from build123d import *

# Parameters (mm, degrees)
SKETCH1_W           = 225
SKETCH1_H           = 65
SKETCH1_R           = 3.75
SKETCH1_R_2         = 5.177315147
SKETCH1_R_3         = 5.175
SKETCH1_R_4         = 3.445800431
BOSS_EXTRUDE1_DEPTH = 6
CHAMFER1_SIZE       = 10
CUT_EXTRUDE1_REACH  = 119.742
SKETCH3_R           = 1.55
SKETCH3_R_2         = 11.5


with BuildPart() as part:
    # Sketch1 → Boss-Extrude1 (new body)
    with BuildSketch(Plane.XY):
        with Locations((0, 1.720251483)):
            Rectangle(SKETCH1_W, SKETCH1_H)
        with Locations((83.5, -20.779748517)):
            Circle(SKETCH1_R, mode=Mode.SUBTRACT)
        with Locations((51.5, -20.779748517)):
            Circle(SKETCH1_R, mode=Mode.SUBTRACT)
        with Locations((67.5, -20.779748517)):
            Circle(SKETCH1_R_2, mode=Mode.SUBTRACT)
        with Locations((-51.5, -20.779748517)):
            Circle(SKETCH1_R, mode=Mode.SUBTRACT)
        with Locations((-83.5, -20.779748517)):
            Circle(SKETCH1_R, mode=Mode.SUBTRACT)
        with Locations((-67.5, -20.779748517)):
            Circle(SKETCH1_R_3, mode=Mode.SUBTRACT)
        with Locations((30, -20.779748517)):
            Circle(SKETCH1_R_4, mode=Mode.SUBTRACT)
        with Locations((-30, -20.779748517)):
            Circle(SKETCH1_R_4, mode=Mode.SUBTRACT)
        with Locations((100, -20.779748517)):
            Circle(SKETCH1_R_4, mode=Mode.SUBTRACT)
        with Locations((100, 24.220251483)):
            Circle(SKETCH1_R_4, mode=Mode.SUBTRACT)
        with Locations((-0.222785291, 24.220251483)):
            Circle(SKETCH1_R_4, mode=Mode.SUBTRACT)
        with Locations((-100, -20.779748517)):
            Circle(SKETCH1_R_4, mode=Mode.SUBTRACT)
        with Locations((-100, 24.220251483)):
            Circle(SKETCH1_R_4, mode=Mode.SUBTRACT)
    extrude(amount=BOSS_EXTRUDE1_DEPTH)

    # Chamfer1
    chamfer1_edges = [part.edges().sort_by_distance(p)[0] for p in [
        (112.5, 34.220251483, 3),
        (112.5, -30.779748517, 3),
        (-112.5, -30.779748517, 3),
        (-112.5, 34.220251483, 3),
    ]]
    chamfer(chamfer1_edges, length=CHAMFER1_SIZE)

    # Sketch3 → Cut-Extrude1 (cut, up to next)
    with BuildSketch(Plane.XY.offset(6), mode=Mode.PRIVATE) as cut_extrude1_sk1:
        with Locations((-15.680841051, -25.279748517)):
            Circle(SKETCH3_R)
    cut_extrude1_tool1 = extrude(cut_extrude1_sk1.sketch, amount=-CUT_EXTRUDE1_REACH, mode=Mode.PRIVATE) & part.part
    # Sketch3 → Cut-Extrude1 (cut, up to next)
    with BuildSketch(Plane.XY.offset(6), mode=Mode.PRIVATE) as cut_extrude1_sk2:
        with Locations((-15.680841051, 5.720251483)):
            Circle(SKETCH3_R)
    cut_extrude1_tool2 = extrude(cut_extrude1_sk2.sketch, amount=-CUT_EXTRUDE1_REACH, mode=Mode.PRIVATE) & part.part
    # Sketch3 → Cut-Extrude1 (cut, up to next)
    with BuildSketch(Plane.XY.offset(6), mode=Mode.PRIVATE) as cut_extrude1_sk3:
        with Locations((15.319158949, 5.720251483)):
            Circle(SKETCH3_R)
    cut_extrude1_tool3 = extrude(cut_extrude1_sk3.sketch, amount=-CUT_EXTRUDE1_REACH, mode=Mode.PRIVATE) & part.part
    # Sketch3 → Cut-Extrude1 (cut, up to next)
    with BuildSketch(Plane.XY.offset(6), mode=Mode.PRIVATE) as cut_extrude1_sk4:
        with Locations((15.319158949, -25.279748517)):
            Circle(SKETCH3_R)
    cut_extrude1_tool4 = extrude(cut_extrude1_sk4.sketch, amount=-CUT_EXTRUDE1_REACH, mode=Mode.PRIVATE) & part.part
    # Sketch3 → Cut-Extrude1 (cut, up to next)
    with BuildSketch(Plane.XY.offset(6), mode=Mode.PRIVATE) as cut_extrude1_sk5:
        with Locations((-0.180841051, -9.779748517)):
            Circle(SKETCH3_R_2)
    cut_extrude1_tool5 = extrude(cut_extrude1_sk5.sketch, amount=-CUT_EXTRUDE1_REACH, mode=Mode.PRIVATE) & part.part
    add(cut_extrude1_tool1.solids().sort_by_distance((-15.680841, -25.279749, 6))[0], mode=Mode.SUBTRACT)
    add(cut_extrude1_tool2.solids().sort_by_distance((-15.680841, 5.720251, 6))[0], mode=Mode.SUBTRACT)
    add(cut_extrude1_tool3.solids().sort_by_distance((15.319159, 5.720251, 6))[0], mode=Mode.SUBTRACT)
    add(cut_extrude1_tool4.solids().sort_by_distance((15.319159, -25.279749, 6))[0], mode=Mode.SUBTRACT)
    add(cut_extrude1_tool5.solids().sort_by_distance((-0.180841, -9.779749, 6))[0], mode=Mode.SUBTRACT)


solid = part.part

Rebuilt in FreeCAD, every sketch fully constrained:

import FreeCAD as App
import Part
import Sketcher


def edges_at(feature, points):
    """Names of the edges that pass closest to the given points."""
    edges = feature.Shape.Edges
    near = lambda p: min(range(len(edges)), key=lambda i: edges[i].distToShape(Part.Vertex(*p))[0])
    return sorted({f"Edge{near(p) + 1}" for p in points})

doc = App.newDocument("Part")
body = doc.addObject("PartDesign::Body", "Body")

sketch1 = body.newObject("Sketcher::SketchObject", "Sketch")
sketch1.AttachmentSupport = (doc.getObject("XY_Plane"), [""])
sketch1.MapMode = "FlatFace"
sketch1.addGeometry([
    Part.LineSegment(App.Vector(-112.5, 34.2, 0), App.Vector(-112.5, -30.8, 0)),
    Part.LineSegment(App.Vector(-112.5, -30.8, 0), App.Vector(112.5, -30.8, 0)),
    Part.LineSegment(App.Vector(112.5, -30.8, 0), App.Vector(112.5, 34.2, 0)),
    Part.LineSegment(App.Vector(112.5, 34.2, 0), App.Vector(-112.5, 34.2, 0)),
    Part.Circle(App.Vector(-100, -20.8, 0), App.Vector(0, 0, 1), 3.4),
    Part.Circle(App.Vector(-83.5, -20.8, 0), App.Vector(0, 0, 1), 3.8),
    Part.Circle(App.Vector(-67.5, -20.8, 0), App.Vector(0, 0, 1), 5.2),
    Part.Circle(App.Vector(-51.5, -20.8, 0), App.Vector(0, 0, 1), 3.8),
    Part.Circle(App.Vector(-30, -20.8, 0), App.Vector(0, 0, 1), 3.4),
    Part.Circle(App.Vector(30, -20.8, 0), App.Vector(0, 0, 1), 3.4),
    Part.Circle(App.Vector(51.5, -20.8, 0), App.Vector(0, 0, 1), 3.8),
    Part.Circle(App.Vector(67.5, -20.8, 0), App.Vector(0, 0, 1), 5.2),
    Part.Circle(App.Vector(83.5, -20.8, 0), App.Vector(0, 0, 1), 3.8),
    Part.Circle(App.Vector(100, -20.8, 0), App.Vector(0, 0, 1), 3.4),
    Part.Circle(App.Vector(-100, 24.2, 0), App.Vector(0, 0, 1), 3.4),
    Part.Circle(App.Vector(-0.2, 24.2, 0), App.Vector(0, 0, 1), 3.4),
    Part.Circle(App.Vector(100, 24.2, 0), App.Vector(0, 0, 1), 3.4),
], False)
sketch1.addConstraint([
    Sketcher.Constraint("Coincident", 0, 2, 1, 1),
    Sketcher.Constraint("Coincident", 1, 2, 2, 1),
    Sketcher.Constraint("Coincident", 2, 2, 3, 1),
    Sketcher.Constraint("Coincident", 3, 2, 0, 1),
    Sketcher.Constraint("Vertical", 0),
    Sketcher.Constraint("Horizontal", 1),
    Sketcher.Constraint("Vertical", 2),
    Sketcher.Constraint("Horizontal", 3),
    Sketcher.Constraint("Equal", 5, 7),
    Sketcher.Constraint("Equal", 4, 8),
    Sketcher.Constraint("Equal", 8, 9),
    Sketcher.Constraint("Equal", 7, 10),
    Sketcher.Constraint("Equal", 10, 12),
    Sketcher.Constraint("Equal", 9, 13),
    Sketcher.Constraint("Equal", 13, 14),
    Sketcher.Constraint("Equal", 14, 15),
    Sketcher.Constraint("Equal", 15, 16),
    Sketcher.Constraint("Symmetric", 8, 3, 9, 3, -2),
    Sketcher.Constraint("Symmetric", 7, 3, 10, 3, -2),
    Sketcher.Constraint("Symmetric", 6, 3, 11, 3, -2),
    Sketcher.Constraint("Symmetric", 5, 3, 12, 3, -2),
    Sketcher.Constraint("Symmetric", 4, 3, 13, 3, -2),
    Sketcher.Constraint("Symmetric", 14, 3, 16, 3, -2),
    Sketcher.Constraint("Horizontal", 4, 3, 5, 3),
    Sketcher.Constraint("Horizontal", 5, 3, 6, 3),
    Sketcher.Constraint("Horizontal", 6, 3, 7, 3),
    Sketcher.Constraint("Horizontal", 7, 3, 8, 3),
    Sketcher.Constraint("Horizontal", 14, 3, 15, 3),
    Sketcher.Constraint("Vertical", 4, 3, 14, 3),
    Sketcher.Constraint("Diameter", 5, 7.5),
    Sketcher.Constraint("Diameter", 6, 10.35),
    Sketcher.Constraint("DistanceX", 1, 1, 1, 2, 225.0),
    Sketcher.Constraint("DistanceY", 0, 2, 0, 1, 65.0),
    Sketcher.Constraint("DistanceX", 4, 3, -1, 1, 100.0),
    Sketcher.Constraint("DistanceX", 8, 3, -1, 1, 30.0),
    Sketcher.Constraint("DistanceX", 5, 3, 6, 3, 16.0),
    Sketcher.Constraint("DistanceX", 6, 3, 7, 3, 16.0),
    Sketcher.Constraint("DistanceX", 7, 3, 10, 3, 103.0),
    Sketcher.Constraint("DistanceY", 4, 3, 14, 3, 45.0),
    Sketcher.Constraint("DistanceY", 0, 2, 4, 3, 10.0),
    Sketcher.Constraint("DistanceX", 0, 2, 5, 3, 29.0),
    Sketcher.Constraint("Diameter", 4, 6.891601),
    Sketcher.Constraint("Diameter", 11, 10.35463),
    Sketcher.Constraint("DistanceY", 4, 3, -1, 1, 20.779749),
    Sketcher.Constraint("DistanceX", 15, 3, -1, 1, 0.222785),
])
pad1 = body.newObject("PartDesign::Pad", "Pad")
pad1.Profile = sketch1
pad1.Length = 6
doc.recompute()

chamfer = body.newObject("PartDesign::Chamfer", "Chamfer")
chamfer.Base = (pad1, edges_at(pad1, [
    (112.5, 34.22, 3),
    (112.5, -30.78, 3),
    (-112.5, -30.78, 3),
    (-112.5, 34.22, 3),
]))
chamfer.Size = 10

sketch2 = body.newObject("Sketcher::SketchObject", "Sketch001")
sketch2.AttachmentSupport = (doc.getObject("XY_Plane"), [""])
sketch2.MapMode = "FlatFace"
sketch2.AttachmentOffset = App.Placement(App.Vector(0, 0, 6), App.Rotation())
sketch2.addGeometry(Part.Circle(App.Vector(-15.7, -25.3, 0), App.Vector(0, 0, 1), 1.6), False)
sketch2.addConstraint([
    Sketcher.Constraint("Diameter", 0, 3.1),
    Sketcher.Constraint("DistanceX", 0, 3, -1, 1, 15.680841),
    Sketcher.Constraint("DistanceY", 0, 3, -1, 1, 25.279749),
])
pocket1 = body.newObject("PartDesign::Pocket", "Pocket")
pocket1.Profile = sketch2
pocket1.Type = "UpToFirst"

sketch3 = body.newObject("Sketcher::SketchObject", "Sketch002")
sketch3.AttachmentSupport = (doc.getObject("XY_Plane"), [""])
sketch3.MapMode = "FlatFace"
sketch3.AttachmentOffset = App.Placement(App.Vector(0, 0, 6), App.Rotation())
sketch3.addGeometry(Part.Circle(App.Vector(-15.7, 5.7, 0), App.Vector(0, 0, 1), 1.6), False)
sketch3.addConstraint([
    Sketcher.Constraint("Diameter", 0, 3.1),
    Sketcher.Constraint("DistanceX", 0, 3, -1, 1, 15.680841),
    Sketcher.Constraint("DistanceY", -1, 1, 0, 3, 5.720251),
])
pocket2 = body.newObject("PartDesign::Pocket", "Pocket001")
pocket2.Profile = sketch3
pocket2.Type = "UpToFirst"

sketch4 = body.newObject("Sketcher::SketchObject", "Sketch003")
sketch4.AttachmentSupport = (doc.getObject("XY_Plane"), [""])
sketch4.MapMode = "FlatFace"
sketch4.AttachmentOffset = App.Placement(App.Vector(0, 0, 6), App.Rotation())
sketch4.addGeometry(Part.Circle(App.Vector(15.3, 5.7, 0), App.Vector(0, 0, 1), 1.6), False)
sketch4.addConstraint([
    Sketcher.Constraint("Diameter", 0, 3.1),
    Sketcher.Constraint("DistanceX", -1, 1, 0, 3, 15.319159),
    Sketcher.Constraint("DistanceY", -1, 1, 0, 3, 5.720251),
])
pocket3 = body.newObject("PartDesign::Pocket", "Pocket002")
pocket3.Profile = sketch4
pocket3.Type = "UpToFirst"

sketch5 = body.newObject("Sketcher::SketchObject", "Sketch004")
sketch5.AttachmentSupport = (doc.getObject("XY_Plane"), [""])
sketch5.MapMode = "FlatFace"
sketch5.AttachmentOffset = App.Placement(App.Vector(0, 0, 6), App.Rotation())
sketch5.addGeometry(Part.Circle(App.Vector(15.3, -25.3, 0), App.Vector(0, 0, 1), 1.6), False)
sketch5.addConstraint([
    Sketcher.Constraint("Diameter", 0, 3.1),
    Sketcher.Constraint("DistanceX", -1, 1, 0, 3, 15.319159),
    Sketcher.Constraint("DistanceY", 0, 3, -1, 1, 25.279749),
])
pocket4 = body.newObject("PartDesign::Pocket", "Pocket003")
pocket4.Profile = sketch5
pocket4.Type = "UpToFirst"

sketch6 = body.newObject("Sketcher::SketchObject", "Sketch005")
sketch6.AttachmentSupport = (doc.getObject("XY_Plane"), [""])
sketch6.MapMode = "FlatFace"
sketch6.AttachmentOffset = App.Placement(App.Vector(0, 0, 6), App.Rotation())
sketch6.addGeometry(Part.Circle(App.Vector(0, -10, 0), App.Vector(0, 0, 1), 12), False)
sketch6.addConstraint([
    Sketcher.Constraint("Diameter", 0, 23.0),
    Sketcher.Constraint("DistanceX", 0, 3, -1, 1, 0.180841),
    Sketcher.Constraint("DistanceY", 0, 3, -1, 1, 9.779749),
])
pocket5 = body.newObject("PartDesign::Pocket", "Pocket004")
pocket5.Profile = sketch6
pocket5.Type = "UpToFirst"

doc.recompute()
